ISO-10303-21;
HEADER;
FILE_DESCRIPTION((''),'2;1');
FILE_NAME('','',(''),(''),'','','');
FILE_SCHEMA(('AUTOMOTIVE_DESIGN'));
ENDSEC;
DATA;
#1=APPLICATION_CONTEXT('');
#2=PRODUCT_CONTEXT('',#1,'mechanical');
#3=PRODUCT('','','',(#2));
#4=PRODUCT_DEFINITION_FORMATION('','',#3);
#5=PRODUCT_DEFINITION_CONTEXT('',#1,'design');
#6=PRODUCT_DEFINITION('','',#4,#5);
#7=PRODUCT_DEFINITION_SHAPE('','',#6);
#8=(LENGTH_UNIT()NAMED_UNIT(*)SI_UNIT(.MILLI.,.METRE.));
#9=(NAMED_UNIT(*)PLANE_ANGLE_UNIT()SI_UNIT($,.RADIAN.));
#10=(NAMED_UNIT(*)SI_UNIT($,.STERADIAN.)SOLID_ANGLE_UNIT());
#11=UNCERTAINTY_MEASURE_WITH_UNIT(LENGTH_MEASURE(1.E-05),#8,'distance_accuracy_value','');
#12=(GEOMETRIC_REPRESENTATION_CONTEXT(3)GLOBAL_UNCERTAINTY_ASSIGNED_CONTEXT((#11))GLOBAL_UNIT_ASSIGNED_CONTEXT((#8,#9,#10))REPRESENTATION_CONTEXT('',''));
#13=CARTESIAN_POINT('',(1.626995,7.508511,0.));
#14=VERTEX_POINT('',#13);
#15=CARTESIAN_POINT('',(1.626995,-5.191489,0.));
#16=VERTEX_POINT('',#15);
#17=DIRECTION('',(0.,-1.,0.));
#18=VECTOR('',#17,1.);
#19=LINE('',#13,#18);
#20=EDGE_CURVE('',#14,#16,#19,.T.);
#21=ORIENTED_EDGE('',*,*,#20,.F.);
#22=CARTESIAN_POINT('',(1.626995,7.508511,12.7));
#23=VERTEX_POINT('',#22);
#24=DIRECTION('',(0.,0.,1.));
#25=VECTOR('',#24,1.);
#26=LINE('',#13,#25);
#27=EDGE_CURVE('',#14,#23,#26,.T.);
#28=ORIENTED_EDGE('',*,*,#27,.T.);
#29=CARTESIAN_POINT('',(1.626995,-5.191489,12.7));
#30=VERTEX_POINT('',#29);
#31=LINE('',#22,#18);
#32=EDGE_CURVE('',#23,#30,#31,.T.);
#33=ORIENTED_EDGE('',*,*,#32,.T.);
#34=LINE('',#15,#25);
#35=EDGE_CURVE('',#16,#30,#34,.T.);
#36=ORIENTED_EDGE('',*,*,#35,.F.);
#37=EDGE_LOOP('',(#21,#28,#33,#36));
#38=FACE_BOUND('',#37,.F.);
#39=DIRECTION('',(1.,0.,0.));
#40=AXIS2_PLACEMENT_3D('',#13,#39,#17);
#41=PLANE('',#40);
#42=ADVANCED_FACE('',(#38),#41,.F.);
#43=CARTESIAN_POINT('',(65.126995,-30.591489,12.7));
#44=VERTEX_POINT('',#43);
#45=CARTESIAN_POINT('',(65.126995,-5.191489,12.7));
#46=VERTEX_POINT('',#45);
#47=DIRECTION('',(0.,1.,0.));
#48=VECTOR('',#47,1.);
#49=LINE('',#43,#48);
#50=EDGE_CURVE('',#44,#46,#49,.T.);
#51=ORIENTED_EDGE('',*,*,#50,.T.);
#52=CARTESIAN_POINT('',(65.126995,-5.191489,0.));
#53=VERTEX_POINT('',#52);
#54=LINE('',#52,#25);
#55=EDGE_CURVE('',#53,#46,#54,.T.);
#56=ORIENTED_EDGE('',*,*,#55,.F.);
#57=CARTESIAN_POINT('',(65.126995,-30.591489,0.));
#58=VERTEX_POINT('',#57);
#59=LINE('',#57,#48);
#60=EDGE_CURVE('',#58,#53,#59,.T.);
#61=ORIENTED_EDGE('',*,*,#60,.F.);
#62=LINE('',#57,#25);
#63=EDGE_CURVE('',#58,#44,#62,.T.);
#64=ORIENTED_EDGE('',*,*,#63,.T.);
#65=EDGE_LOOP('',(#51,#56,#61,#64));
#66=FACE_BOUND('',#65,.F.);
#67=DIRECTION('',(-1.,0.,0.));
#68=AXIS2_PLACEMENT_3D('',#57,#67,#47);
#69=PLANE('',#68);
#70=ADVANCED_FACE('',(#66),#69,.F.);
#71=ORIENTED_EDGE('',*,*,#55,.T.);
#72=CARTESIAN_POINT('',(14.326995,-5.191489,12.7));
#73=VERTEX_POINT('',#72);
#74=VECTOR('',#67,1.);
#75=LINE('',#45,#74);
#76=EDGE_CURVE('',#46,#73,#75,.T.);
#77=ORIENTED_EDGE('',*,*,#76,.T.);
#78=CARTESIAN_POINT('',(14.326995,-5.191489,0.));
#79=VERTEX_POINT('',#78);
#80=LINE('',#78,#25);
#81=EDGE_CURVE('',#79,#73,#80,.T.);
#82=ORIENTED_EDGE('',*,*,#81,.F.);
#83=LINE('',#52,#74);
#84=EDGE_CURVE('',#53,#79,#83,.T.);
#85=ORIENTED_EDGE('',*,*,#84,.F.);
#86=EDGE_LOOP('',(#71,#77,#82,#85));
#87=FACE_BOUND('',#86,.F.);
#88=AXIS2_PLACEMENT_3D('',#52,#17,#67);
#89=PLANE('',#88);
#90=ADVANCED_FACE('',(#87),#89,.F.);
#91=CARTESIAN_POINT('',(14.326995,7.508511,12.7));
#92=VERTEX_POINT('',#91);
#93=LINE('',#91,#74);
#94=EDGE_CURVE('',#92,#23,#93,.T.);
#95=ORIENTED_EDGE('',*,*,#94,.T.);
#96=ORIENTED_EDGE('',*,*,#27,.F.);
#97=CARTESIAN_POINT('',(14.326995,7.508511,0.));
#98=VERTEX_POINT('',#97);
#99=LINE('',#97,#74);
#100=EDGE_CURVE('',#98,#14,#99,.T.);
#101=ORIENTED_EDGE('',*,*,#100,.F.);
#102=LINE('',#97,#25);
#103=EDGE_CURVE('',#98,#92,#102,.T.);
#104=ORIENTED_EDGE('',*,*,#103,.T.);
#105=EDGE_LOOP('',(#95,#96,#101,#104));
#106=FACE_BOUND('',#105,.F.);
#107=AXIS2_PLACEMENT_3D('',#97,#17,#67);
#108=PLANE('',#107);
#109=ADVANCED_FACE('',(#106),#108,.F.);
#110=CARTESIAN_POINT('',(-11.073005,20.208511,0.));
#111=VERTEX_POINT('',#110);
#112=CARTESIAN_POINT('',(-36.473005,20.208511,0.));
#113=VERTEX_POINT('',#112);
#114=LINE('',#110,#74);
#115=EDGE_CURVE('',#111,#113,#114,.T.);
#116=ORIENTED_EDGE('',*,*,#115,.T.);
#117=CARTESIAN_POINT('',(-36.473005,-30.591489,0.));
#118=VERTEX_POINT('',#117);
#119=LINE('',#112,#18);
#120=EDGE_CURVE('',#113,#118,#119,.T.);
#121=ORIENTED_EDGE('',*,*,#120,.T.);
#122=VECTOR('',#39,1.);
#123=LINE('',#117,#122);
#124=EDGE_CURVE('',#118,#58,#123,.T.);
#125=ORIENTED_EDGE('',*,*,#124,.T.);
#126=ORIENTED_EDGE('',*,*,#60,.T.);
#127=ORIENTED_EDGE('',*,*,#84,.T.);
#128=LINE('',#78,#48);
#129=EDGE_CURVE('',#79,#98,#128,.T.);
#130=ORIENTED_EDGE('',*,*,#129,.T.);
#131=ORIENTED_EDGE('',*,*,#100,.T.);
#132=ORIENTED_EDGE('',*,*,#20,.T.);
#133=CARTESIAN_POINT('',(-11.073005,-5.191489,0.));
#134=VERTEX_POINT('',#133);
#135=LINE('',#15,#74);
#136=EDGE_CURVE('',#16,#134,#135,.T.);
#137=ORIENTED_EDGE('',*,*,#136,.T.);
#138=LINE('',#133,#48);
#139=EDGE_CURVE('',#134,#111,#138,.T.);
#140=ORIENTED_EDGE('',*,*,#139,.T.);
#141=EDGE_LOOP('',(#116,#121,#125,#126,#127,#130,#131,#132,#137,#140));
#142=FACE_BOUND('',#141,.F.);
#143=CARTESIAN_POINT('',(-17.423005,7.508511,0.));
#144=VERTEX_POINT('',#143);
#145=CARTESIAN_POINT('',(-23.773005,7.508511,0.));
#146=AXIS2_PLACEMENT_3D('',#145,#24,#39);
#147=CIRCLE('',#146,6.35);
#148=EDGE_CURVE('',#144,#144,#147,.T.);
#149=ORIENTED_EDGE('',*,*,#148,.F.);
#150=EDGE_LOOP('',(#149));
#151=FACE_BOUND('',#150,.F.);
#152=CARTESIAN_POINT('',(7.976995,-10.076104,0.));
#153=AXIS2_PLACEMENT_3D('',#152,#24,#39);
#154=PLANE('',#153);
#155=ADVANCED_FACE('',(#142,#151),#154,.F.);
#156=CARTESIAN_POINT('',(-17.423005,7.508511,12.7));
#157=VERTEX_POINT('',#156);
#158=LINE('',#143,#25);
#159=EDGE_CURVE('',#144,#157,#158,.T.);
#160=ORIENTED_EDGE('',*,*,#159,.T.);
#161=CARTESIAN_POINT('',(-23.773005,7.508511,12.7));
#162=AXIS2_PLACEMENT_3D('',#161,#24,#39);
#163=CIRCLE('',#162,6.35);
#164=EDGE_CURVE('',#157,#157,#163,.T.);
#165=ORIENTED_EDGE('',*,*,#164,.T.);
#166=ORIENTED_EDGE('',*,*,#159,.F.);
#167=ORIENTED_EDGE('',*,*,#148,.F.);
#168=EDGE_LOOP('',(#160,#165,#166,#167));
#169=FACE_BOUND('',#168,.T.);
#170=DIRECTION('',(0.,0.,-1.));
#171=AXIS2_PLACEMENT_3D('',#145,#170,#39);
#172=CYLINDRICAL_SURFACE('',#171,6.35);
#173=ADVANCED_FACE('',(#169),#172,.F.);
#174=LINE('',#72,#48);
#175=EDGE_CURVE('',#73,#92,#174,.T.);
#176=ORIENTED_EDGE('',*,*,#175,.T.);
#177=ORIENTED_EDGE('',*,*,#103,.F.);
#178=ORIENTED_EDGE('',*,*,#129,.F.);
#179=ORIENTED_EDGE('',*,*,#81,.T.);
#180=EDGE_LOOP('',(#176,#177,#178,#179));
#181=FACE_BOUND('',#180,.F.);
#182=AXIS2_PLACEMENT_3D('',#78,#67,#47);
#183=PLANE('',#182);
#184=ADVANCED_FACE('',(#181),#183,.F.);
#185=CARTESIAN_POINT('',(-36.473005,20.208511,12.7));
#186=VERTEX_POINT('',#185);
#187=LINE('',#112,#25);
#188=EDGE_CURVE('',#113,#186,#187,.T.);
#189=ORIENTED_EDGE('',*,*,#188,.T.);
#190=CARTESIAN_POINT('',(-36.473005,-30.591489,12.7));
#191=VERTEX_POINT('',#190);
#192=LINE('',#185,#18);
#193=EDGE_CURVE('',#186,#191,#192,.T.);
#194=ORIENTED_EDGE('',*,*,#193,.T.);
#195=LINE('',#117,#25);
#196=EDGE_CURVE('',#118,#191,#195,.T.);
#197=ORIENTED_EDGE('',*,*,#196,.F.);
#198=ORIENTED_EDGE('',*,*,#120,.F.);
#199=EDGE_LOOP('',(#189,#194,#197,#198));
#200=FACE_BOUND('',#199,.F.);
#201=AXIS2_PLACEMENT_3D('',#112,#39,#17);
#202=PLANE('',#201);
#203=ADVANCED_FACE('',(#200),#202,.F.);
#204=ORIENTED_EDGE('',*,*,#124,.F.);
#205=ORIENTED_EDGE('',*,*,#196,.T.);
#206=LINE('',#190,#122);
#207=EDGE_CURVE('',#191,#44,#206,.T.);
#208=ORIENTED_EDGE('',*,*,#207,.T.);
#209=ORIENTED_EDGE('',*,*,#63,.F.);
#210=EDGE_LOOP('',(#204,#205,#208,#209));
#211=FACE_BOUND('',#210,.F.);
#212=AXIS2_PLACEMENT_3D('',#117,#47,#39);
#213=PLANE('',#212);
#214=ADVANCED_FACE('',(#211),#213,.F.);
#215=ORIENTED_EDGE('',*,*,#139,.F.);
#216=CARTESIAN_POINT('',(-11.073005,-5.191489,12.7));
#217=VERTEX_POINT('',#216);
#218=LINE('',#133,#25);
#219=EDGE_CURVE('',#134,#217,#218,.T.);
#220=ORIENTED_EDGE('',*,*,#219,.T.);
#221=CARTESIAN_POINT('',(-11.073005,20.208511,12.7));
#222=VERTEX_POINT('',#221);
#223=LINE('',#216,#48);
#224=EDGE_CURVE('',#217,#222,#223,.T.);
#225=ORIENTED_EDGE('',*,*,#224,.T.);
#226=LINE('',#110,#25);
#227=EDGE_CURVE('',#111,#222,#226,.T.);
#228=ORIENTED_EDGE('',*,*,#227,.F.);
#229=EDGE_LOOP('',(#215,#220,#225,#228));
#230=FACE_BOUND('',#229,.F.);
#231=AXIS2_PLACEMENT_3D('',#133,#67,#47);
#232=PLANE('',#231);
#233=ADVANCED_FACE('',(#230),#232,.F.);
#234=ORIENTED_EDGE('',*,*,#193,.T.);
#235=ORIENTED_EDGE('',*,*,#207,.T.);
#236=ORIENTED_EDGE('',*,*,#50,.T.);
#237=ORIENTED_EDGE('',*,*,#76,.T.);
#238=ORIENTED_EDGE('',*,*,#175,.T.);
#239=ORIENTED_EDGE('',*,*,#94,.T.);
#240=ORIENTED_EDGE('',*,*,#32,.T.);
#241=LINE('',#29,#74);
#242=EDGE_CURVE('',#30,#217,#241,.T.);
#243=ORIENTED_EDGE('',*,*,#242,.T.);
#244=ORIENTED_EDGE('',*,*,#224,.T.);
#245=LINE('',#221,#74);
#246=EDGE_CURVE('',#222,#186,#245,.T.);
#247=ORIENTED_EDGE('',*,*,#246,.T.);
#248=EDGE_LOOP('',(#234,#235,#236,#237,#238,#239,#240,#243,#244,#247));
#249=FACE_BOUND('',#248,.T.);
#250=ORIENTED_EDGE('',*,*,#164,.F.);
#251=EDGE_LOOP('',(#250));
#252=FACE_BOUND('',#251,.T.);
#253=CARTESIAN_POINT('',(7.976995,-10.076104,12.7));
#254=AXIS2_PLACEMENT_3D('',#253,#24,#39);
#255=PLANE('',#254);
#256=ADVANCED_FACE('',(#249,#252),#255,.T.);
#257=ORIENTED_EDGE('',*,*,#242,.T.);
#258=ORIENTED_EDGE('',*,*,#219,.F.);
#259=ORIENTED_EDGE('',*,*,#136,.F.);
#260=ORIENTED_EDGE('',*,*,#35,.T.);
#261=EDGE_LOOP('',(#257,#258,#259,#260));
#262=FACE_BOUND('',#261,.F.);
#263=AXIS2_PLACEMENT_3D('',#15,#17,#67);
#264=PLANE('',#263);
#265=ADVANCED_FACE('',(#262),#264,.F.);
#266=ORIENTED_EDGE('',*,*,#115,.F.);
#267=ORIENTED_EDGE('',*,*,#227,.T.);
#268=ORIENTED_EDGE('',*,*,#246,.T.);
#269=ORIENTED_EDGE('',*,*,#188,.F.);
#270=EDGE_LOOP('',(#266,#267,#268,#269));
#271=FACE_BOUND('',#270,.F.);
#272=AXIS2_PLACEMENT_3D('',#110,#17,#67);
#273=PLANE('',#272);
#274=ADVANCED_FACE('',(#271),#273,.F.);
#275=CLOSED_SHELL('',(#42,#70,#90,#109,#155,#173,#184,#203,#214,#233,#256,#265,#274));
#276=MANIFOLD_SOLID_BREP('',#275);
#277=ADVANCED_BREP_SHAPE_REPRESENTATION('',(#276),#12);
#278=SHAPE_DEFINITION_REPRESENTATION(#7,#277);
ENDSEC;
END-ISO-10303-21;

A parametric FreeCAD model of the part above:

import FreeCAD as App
import Part
import Sketcher
from FreeCAD import Vector
Q = App.Units.Quantity


def add_polygon(sketch, points):
    """Adds a closed chain of lines whose ends are joined by coincident constraints."""
    first, n = sketch.GeometryCount, len(points)
    for a, b in zip(points, points[1:] + points[:1]):
        sketch.addGeometry(Part.LineSegment(App.Vector(*a, 0), App.Vector(*b, 0)), False)
    for i in range(n):
        sketch.addConstraint(Sketcher.Constraint("Coincident", first + i, 2, first + (i + 1) % n, 1))

doc = App.newDocument("Part")
body = doc.addObject("PartDesign::Body", "Body")

# Sketch on XY plane
sketch1 = body.newObject("Sketcher::SketchObject", "Sketch")
sketch1.AttachmentSupport = (doc.getObject("XY_Plane"), [""])
sketch1.MapMode = "FlatFace"
add_polygon(sketch1, [(-11.073005, 20.208511), (-36.473005, 20.208511), (-36.473005, -30.591489), (65.126995, -30.591489), (65.126995, -5.191489), (14.326995, -5.191489), (14.326995, 7.508511), (1.626995, 7.508511), (1.626995, -5.191489), (-11.073005, -5.191489)])  # lines 0-9
sketch1.addGeometry(Part.Circle(Vector(-23.773005, 7.508511, 0), Vector(0, 0, 1), 6.35), False)  # 10
sketch1.addConstraint([
    Sketcher.Constraint("Horizontal", 0),
    Sketcher.Constraint("Vertical", 1),
    Sketcher.Constraint("Horizontal", 2),
    Sketcher.Constraint("Vertical", 3),
    Sketcher.Constraint("Horizontal", 4),
    Sketcher.Constraint("Vertical", 5),
    Sketcher.Constraint("Horizontal", 6),
    Sketcher.Constraint("Vertical", 7),
    Sketcher.Constraint("Horizontal", 8),
    Sketcher.Constraint("Vertical", 9),
    Sketcher.Constraint("Horizontal", 10, 3, 5, 2),
    Sketcher.Constraint("Horizontal", 4, 2, 7, 2),
    Sketcher.Constraint("Equal", 6, 8),
    Sketcher.Constraint("Equal", 4, 1),
    Sketcher.Constraint("Equal", 0, 3),
    Sketcher.Constraint("Equal", 8, 5),
    Sketcher.Constraint("Equal", 3, 9),
    Sketcher.Constraint("Diameter", 10, Q("0.5 in")),
    Sketcher.Constraint("DistanceX", 0, 2, 0, 1, Q("1 in")),
    Sketcher.Constraint("DistanceX", 2, 1, 2, 2, Q("4 in")),
    Sketcher.Constraint("DistanceX", 10, 3, 6, 2, Q("1 in")),
    Sketcher.Constraint("DistanceY", -1, 1, 10, 3, Q("7.508511 mm")),
    Sketcher.Constraint("DistanceX", 10, 3, -1, 1, Q("23.773005 mm")),
])
pad1 = body.newObject("PartDesign::Pad", "Pad")
pad1.Profile = sketch1
pad1.Length = Q("0.5 in")

doc.recompute()
